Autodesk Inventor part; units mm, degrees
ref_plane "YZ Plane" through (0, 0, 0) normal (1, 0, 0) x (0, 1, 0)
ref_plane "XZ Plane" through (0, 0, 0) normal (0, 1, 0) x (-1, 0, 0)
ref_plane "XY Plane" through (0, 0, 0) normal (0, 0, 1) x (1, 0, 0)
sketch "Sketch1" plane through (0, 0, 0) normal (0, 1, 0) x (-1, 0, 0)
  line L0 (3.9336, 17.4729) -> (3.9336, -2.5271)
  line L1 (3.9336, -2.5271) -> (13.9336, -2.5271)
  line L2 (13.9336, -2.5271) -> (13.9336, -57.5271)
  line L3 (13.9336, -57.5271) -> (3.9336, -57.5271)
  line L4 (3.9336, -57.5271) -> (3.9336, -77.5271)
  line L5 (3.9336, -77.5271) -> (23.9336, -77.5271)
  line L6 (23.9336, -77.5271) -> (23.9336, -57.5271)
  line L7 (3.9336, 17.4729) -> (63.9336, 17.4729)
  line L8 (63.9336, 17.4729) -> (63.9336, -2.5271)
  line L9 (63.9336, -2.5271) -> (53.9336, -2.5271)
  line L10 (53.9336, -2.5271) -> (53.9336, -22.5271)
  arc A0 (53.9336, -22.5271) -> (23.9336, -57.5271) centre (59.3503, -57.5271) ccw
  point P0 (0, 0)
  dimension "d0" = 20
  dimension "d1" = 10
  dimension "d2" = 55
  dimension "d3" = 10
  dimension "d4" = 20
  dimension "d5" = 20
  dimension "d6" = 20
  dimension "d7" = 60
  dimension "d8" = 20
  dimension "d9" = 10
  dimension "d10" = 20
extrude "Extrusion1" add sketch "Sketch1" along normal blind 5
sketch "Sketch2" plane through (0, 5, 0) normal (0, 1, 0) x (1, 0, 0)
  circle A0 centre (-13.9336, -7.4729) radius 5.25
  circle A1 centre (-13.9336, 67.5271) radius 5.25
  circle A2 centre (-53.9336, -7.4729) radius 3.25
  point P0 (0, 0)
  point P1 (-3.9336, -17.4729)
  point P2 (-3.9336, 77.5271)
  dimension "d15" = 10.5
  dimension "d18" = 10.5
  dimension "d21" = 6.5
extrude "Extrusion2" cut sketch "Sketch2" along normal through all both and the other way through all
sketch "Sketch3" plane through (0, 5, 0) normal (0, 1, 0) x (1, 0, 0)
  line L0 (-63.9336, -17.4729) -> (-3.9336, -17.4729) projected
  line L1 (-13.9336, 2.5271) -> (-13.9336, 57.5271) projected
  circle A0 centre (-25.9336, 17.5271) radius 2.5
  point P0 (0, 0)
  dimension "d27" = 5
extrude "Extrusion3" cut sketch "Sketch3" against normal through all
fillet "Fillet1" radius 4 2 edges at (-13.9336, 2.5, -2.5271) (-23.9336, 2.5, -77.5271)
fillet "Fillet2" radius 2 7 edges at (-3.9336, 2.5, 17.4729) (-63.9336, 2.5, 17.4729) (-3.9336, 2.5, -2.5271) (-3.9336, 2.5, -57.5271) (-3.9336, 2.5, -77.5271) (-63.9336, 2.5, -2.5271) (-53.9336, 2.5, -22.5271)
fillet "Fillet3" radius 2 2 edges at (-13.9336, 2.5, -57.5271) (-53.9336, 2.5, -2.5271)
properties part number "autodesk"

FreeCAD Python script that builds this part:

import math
import FreeCAD as App
import Part
import Sketcher
from FreeCAD import Vector


def edges_at(feature, points):
    """Names of the edges that pass closest to the given points."""
    edges = feature.Shape.Edges
    near = lambda p: min(range(len(edges)), key=lambda i: edges[i].distToShape(Part.Vertex(*p))[0])
    return sorted({f"Edge{near(p) + 1}" for p in points})

doc = App.newDocument("Part")
body = doc.addObject("PartDesign::Body", "Body")

# Sketch on XZ plane
sketch1 = doc.addObject("Sketcher::SketchObject", "Sketch")
body.addObject(sketch1)
sketch1.AttachmentSupport = (doc.XZ_Plane, [""])
sketch1.MapMode = "FlatFace"
sketch1.addGeometry([
    Part.LineSegment(Vector(-63.9336, 17.4729, 0), Vector(-3.9336, 17.4729, 0)),  # 0
    Part.LineSegment(Vector(-3.9336, 17.4729, 0), Vector(-3.9336, -2.5271, 0)),  # 1
    Part.LineSegment(Vector(-3.9336, -2.5271, 0), Vector(-13.9336, -2.5271, 0)),  # 2
    Part.LineSegment(Vector(-13.9336, -2.5271, 0), Vector(-13.9336, -57.5271, 0)),  # 3
    Part.LineSegment(Vector(-13.9336, -57.5271, 0), Vector(-3.9336, -57.5271, 0)),  # 4
    Part.LineSegment(Vector(-3.9336, -57.5271, 0), Vector(-3.9336, -77.5271, 0)),  # 5
    Part.LineSegment(Vector(-3.9336, -77.5271, 0), Vector(-23.9336, -77.5271, 0)),  # 6
    Part.LineSegment(Vector(-23.9336, -77.5271, 0), Vector(-23.9336, -57.5271, 0)),  # 7
    Part.ArcOfCircle(Part.Circle(Vector(-59.3503, -57.5271, 0), Vector(0, 0, 1), 35.416672), math.radians(0), math.radians(81.202536)),  # 8
    Part.LineSegment(Vector(-53.9336, -22.5271, 0), Vector(-53.9336, -2.5271, 0)),  # 9
    Part.LineSegment(Vector(-53.9336, -2.5271, 0), Vector(-63.9336, -2.5271, 0)),  # 10
    Part.LineSegment(Vector(-63.9336, -2.5271, 0), Vector(-63.9336, 17.4729, 0)),  # 11
], False)
sketch1.addConstraint([
    Sketcher.Constraint("Coincident", 0, 2, 1, 1),
    Sketcher.Constraint("Coincident", 1, 2, 2, 1),
    Sketcher.Constraint("Coincident", 2, 2, 3, 1),
    Sketcher.Constraint("Coincident", 3, 2, 4, 1),
    Sketcher.Constraint("Coincident", 4, 2, 5, 1),
    Sketcher.Constraint("Coincident", 5, 2, 6, 1),
    Sketcher.Constraint("Coincident", 6, 2, 7, 1),
    Sketcher.Constraint("Tangent", 7, 2, 8, 1),
    Sketcher.Constraint("Coincident", 8, 2, 9, 1),
    Sketcher.Constraint("Coincident", 9, 2, 10, 1),
    Sketcher.Constraint("Coincident", 10, 2, 11, 1),
    Sketcher.Constraint("Coincident", 11, 2, 0, 1),
    Sketcher.Constraint("Horizontal", 0),
    Sketcher.Constraint("Vertical", 1),
    Sketcher.Constraint("Horizontal", 2),
    Sketcher.Constraint("Vertical", 3),
    Sketcher.Constraint("Horizontal", 4),
    Sketcher.Constraint("Vertical", 5),
    Sketcher.Constraint("Horizontal", 6),
    Sketcher.Constraint("Vertical", 7),
    Sketcher.Constraint("Vertical", 9),
    Sketcher.Constraint("Horizontal", 10),
    Sketcher.Constraint("Vertical", 11),
    Sketcher.Constraint("Horizontal", 8, 3, 3, 2),
    Sketcher.Constraint("Horizontal", 2, 2, 9, 2),
    Sketcher.Constraint("Vertical", 1, 2, 4, 2),
    Sketcher.Constraint("Equal", 4, 10),
    Sketcher.Constraint("Equal", 6, 1),
    Sketcher.Constraint("Equal", 1, 5),
    Sketcher.Constraint("Equal", 7, 9),
    Sketcher.Constraint("DistanceX", 0, 1, 0, 2, 60.0),
    Sketcher.Constraint("DistanceX", 2, 2, 2, 1, 10.0),
    Sketcher.Constraint("DistanceX", 6, 2, 6, 1, 20.0),
    Sketcher.Constraint("DistanceY", 3, 2, 3, 1, 55.0),
    Sketcher.Constraint("DistanceY", 8, 3, -1, 1, 57.527),
    Sketcher.Constraint("DistanceX", 8, 3, -1, 1, 59.3503),
])
pad1 = doc.addObject("PartDesign::Pad", "Pad")
body.addObject(pad1)
pad1.Profile = sketch1
pad1.Length = 5
pad1.Reversed = True

# Sketch on XZ plane
sketch2 = doc.addObject("Sketcher::SketchObject", "Sketch001")
body.addObject(sketch2)
sketch2.AttachmentSupport = (doc.XZ_Plane, [""])
sketch2.MapMode = "FlatFace"
sketch2.AttachmentOffset = App.Placement(Vector(0, 0, -5), App.Rotation())
sketch2.addGeometry([
    Part.Circle(Vector(-13.9336, 7.4729, 0), Vector(0, 0, 1), 5.25),
    Part.Circle(Vector(-13.9336, -67.5271, 0), Vector(0, 0, 1), 5.25),
    Part.Circle(Vector(-53.9336, 7.4729, 0), Vector(0, 0, 1), 3.25),
], False)
sketch2.addConstraint([
    Sketcher.Constraint("Equal", 0, 1),
    Sketcher.Constraint("Horizontal", 0, 3, 2, 3),
    Sketcher.Constraint("Vertical", 0, 3, 1, 3),
    Sketcher.Constraint("Diameter", 0, 10.5),
    Sketcher.Constraint("Diameter", 2, 6.5),
    Sketcher.Constraint("DistanceY", 1, 3, 0, 3, 75.0),
    Sketcher.Constraint("DistanceX", 2, 3, 0, 3, 40.0),
    Sketcher.Constraint("DistanceY", -1, 1, 0, 3, 7.473),
    Sketcher.Constraint("DistanceX", 0, 3, -1, 1, 13.9336),
])
pocket1 = doc.addObject("PartDesign::Pocket", "Pocket")
body.addObject(pocket1)
pocket1.Profile = sketch2
pocket1.Type = "ThroughAll"
pocket1.Midplane = True

# Sketch on XZ plane
sketch3 = doc.addObject("Sketcher::SketchObject", "Sketch002")
body.addObject(sketch3)
sketch3.AttachmentSupport = (doc.XZ_Plane, [""])
sketch3.MapMode = "FlatFace"
sketch3.AttachmentOffset = App.Placement(Vector(0, 0, -5), App.Rotation())
sketch3.addGeometry(Part.Circle(Vector(-25.9336, -17.5271, 0), Vector(0, 0, 1), 2.5), False)
sketch3.addConstraint([
    Sketcher.Constraint("Diameter", 0, 5.0),
    Sketcher.Constraint("DistanceY", 0, 3, -1, 1, 17.527),
    Sketcher.Constraint("DistanceX", 0, 3, -1, 1, 25.9336),
])
pocket2 = doc.addObject("PartDesign::Pocket", "Pocket001")
body.addObject(pocket2)
pocket2.Profile = sketch3
pocket2.Type = "ThroughAll"
pocket2.Reversed = True
doc.recompute()

fillet = doc.addObject("PartDesign::Fillet", "Fillet")
body.addObject(fillet)
fillet.Base = (pocket2, edges_at(pocket2, [(-13.934, 2.5, -2.527), (-23.934, 2.5, -77.527)]))
fillet.Radius = 4
doc.recompute()

fillet2 = doc.addObject("PartDesign::Fillet", "Fillet001")
body.addObject(fillet2)
fillet2.Base = (fillet, edges_at(fillet, [
    (-3.934, 2.5, 17.473),
    (-63.934, 2.5, 17.473),
    (-3.934, 2.5, -2.527),
    (-3.934, 2.5, -57.527),
    (-3.934, 2.5, -77.527),
    (-63.934, 2.5, -2.527),
    (-53.934, 2.5, -22.527),
]))
fillet2.Radius = 2
doc.recompute()

fillet3 = doc.addObject("PartDesign::Fillet", "Fillet002")
body.addObject(fillet3)
fillet3.Base = (fillet2, edges_at(fillet2, [(-13.934, 2.5, -57.527), (-53.934, 2.5, -2.527)]))
fillet3.Radius = 2

doc.recompute()
